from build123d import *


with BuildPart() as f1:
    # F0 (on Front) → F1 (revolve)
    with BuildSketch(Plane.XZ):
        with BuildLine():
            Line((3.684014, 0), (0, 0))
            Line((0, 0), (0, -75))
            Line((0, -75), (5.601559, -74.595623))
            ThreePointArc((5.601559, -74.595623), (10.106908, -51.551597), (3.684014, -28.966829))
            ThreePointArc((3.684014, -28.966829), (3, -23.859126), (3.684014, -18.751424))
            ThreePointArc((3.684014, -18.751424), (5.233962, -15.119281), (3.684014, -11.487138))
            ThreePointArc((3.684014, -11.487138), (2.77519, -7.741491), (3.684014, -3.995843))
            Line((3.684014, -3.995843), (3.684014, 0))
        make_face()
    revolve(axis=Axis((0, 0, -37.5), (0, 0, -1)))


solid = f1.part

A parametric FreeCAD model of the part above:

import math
import FreeCAD as App
import Part
import Sketcher
from FreeCAD import Vector
Q = App.Units.Quantity

doc = App.newDocument("Part")
params = doc.addObject("Spreadsheet::Sheet", "Params")
for row, (alias, value) in enumerate([
    ("sketch1_height", "75 mm"),
    ("revolution_angle", "360 deg"),
], start=1):
    params.set(f"A{row}", alias)
    params.set(f"B{row}", "=" + value)
    params.setAlias(f"B{row}", alias)

body = doc.addObject("PartDesign::Body", "Body")

# Sketch on XZ plane
sketch1 = body.newObject("Sketcher::SketchObject", "Sketch")
sketch1.AttachmentSupport = (doc.getObject("XZ_Plane"), [""])
sketch1.MapMode = "FlatFace"
sketch1.addGeometry(Part.LineSegment(Vector(3.7, 0, 0), Vector(0, 0, 0)), False)
sketch1.addGeometry(Part.LineSegment(Vector(0, 0, 0), Vector(0, -75, 0)), False)
sketch1.addGeometry(Part.LineSegment(Vector(0, -75, 0), Vector(5.6, -74.6, 0)), False)
sketch1.addGeometry(Part.ArcOfCircle(Part.Circle(Vector(-40.3, -53.7, 0), Vector(0, 0, 1), 50.4), math.radians(-25), math.radians(29)), False)
sketch1.addGeometry(Part.ArcOfCircle(Part.Circle(Vector(22.4, -23.9, 0), Vector(0, 0, 1), 19.4), math.radians(165), math.radians(195)), False)
sketch1.addGeometry(Part.ArcOfCircle(Part.Circle(Vector(0.2, -15.1, 0), Vector(0, 0, 1), 5), math.radians(-46), math.radians(46)), False)
sketch1.addGeometry(Part.ArcOfCircle(Part.Circle(Vector(10.9, -7.7, 0), Vector(0, 0, 1), 8.2), math.radians(153), math.radians(207)), False)
sketch1.addGeometry(Part.LineSegment(Vector(3.7, -4, 0), Vector(3.7, 0, 0)), False)
sketch1.addConstraint(Sketcher.Constraint("Coincident", 0, 2, 1, 1))
sketch1.addConstraint(Sketcher.Constraint("Coincident", 1, 2, 2, 1))
sketch1.addConstraint(Sketcher.Constraint("Coincident", 2, 2, 3, 1))
sketch1.addConstraint(Sketcher.Constraint("Coincident", 3, 2, 4, 2))
sketch1.addConstraint(Sketcher.Constraint("Coincident", 4, 1, 5, 1))
sketch1.addConstraint(Sketcher.Constraint("Coincident", 5, 2, 6, 2))
sketch1.addConstraint(Sketcher.Constraint("Coincident", 6, 1, 7, 1))
sketch1.addConstraint(Sketcher.Constraint("Coincident", 7, 2, 0, 1))
sketch1.addConstraint(Sketcher.Constraint("Horizontal", 0))
sketch1.addConstraint(Sketcher.Constraint("Vertical", 1))
sketch1.addConstraint(Sketcher.Constraint("Vertical", 7))
sketch1.addConstraint(Sketcher.Constraint("Coincident", 0, 2, -1, 1))
sketch1.addConstraint(Sketcher.Constraint("Vertical", 3, 2, 4, 1))
sketch1.addConstraint(Sketcher.Constraint("Vertical", 4, 1, 5, 2))
sketch1.addConstraint(Sketcher.Constraint("Vertical", 5, 2, 6, 1))
sketch1.addConstraint(Sketcher.Constraint("DistanceY", 1, 2, 1, 1, Q("75 mm")))
sketch1.addConstraint(Sketcher.Constraint("Radius", 4, Q("19.412249 mm")))
sketch1.addConstraint(Sketcher.Constraint("Radius", 5, Q("5.03075 mm")))
sketch1.addConstraint(Sketcher.Constraint("Radius", 6, Q("8.17311 mm")))
sketch1.addConstraint(Sketcher.Constraint("Radius", 3, Q("50.405093 mm")))
sketch1.addConstraint(Sketcher.Constraint("DistanceX", -1, 1, 6, 3, Q("10.9483 mm")))
sketch1.addConstraint(Sketcher.Constraint("DistanceX", 5, 3, 3, 2, Q("3.480802 mm")))
sketch1.addConstraint(Sketcher.Constraint("DistanceX", 0, 2, 0, 1, Q("3.684014 mm")))
sketch1.addConstraint(Sketcher.Constraint("DistanceY", 7, 1, 7, 2, Q("3.995843 mm")))
sketch1.addConstraint(Sketcher.Constraint("DistanceX", -1, 1, 4, 3, Q("22.412249 mm")))
sketch1.addConstraint(Sketcher.Constraint("DistanceX", -1, 1, 2, 2, Q("5.601559 mm")))
sketch1.addConstraint(Sketcher.Constraint("DistanceY", 3, 3, 4, 3, Q("29.808871 mm")))
sketch1.setExpression("Constraints[15]", "Params.sketch1_height")
revolution = body.newObject("PartDesign::Revolution", "Revolution")
revolution.Profile = sketch1
revolution.ReferenceAxis = (sketch1, ["V_Axis"])
revolution.setExpression("Angle", "Params.revolution_angle")

doc.recompute()
